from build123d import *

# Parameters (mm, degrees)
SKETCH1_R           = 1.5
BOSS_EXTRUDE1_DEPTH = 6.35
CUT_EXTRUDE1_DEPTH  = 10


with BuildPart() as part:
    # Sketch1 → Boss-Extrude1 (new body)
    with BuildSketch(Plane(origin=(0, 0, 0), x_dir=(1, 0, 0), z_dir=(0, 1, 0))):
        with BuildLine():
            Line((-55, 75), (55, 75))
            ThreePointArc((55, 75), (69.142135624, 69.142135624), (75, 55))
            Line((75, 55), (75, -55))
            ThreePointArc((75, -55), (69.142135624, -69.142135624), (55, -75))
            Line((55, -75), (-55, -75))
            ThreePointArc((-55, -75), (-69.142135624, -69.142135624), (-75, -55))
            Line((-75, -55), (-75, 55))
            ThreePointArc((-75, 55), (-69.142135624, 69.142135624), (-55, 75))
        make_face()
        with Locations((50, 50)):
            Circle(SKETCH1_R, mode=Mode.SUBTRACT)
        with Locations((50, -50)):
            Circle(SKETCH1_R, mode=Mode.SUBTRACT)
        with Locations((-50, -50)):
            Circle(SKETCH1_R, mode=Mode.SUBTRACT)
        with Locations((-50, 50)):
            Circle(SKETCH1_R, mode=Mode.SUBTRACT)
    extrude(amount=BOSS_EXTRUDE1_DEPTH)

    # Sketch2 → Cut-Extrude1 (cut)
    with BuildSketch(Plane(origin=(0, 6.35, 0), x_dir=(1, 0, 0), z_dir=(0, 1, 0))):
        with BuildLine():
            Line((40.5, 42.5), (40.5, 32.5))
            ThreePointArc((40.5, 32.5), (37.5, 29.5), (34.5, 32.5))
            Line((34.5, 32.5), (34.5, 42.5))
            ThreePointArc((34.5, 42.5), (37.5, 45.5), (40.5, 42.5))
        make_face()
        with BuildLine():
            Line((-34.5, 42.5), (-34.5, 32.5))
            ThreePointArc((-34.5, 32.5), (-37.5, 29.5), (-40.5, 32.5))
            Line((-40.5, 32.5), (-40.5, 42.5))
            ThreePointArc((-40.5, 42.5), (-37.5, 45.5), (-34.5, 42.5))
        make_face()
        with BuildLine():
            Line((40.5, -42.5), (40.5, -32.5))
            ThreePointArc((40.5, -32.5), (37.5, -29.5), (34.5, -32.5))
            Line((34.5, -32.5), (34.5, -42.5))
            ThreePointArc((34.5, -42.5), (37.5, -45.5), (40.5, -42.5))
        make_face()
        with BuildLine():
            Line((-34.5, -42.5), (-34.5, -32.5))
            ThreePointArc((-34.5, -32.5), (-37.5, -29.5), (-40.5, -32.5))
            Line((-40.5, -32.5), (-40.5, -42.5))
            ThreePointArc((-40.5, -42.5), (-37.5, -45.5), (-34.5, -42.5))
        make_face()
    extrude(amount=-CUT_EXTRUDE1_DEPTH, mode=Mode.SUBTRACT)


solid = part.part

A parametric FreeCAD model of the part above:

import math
import FreeCAD as App
import Part
import Sketcher

V = App.Vector
Q = App.Units.Quantity

doc = App.newDocument("Part")
body = doc.addObject("PartDesign::Body", "Body")

sketch1 = body.newObject("Sketcher::SketchObject", "Sketch")
sketch1.AttachmentSupport = (doc.getObject("XZ_Plane"), [""])
sketch1.MapMode = "FlatFace"
sketch1.addGeometry(Part.LineSegment(V(55, -75, 0), V(-55, -75, 0)), False)
sketch1.addGeometry(Part.ArcOfCircle(Part.Circle(V(-55, -55, 0), V(0, 0, 1), 20), math.radians(180), math.radians(270)), False)
sketch1.addGeometry(Part.LineSegment(V(-75, -55, 0), V(-75, 55, 0)), False)
sketch1.addGeometry(Part.ArcOfCircle(Part.Circle(V(-55, 55, 0), V(0, 0, 1), 20), math.radians(90), math.radians(180)), False)
sketch1.addGeometry(Part.LineSegment(V(-55, 75, 0), V(55, 75, 0)), False)
sketch1.addGeometry(Part.ArcOfCircle(Part.Circle(V(55, 55, 0), V(0, 0, 1), 20), math.radians(0), math.radians(90)), False)
sketch1.addGeometry(Part.LineSegment(V(75, 55, 0), V(75, -55, 0)), False)
sketch1.addGeometry(Part.ArcOfCircle(Part.Circle(V(55, -55, 0), V(0, 0, 1), 20), math.radians(-90), math.radians(0)), False)
sketch1.addGeometry(Part.Circle(V(50, 50, 0), V(0, 0, 1), 1.5), False)
sketch1.addGeometry(Part.Circle(V(-50, 50, 0), V(0, 0, 1), 1.5), False)
sketch1.addGeometry(Part.Circle(V(50, -50, 0), V(0, 0, 1), 1.5), False)
sketch1.addGeometry(Part.Circle(V(-50, -50, 0), V(0, 0, 1), 1.5), False)
sketch1.addConstraint(Sketcher.Constraint("Tangent", 0, 2, 1, 2))
sketch1.addConstraint(Sketcher.Constraint("Tangent", 1, 1, 2, 1))
sketch1.addConstraint(Sketcher.Constraint("Tangent", 2, 2, 3, 2))
sketch1.addConstraint(Sketcher.Constraint("Tangent", 3, 1, 4, 1))
sketch1.addConstraint(Sketcher.Constraint("Tangent", 4, 2, 5, 2))
sketch1.addConstraint(Sketcher.Constraint("Tangent", 5, 1, 6, 1))
sketch1.addConstraint(Sketcher.Constraint("Tangent", 6, 2, 7, 2))
sketch1.addConstraint(Sketcher.Constraint("Tangent", 7, 1, 0, 1))
sketch1.addConstraint(Sketcher.Constraint("Horizontal", 0))
sketch1.addConstraint(Sketcher.Constraint("Vertical", 2))
sketch1.addConstraint(Sketcher.Constraint("Horizontal", 4))
sketch1.addConstraint(Sketcher.Constraint("Vertical", 6))
sketch1.addConstraint(Sketcher.Constraint("Equal", 1, 3))
sketch1.addConstraint(Sketcher.Constraint("Equal", 3, 5))
sketch1.addConstraint(Sketcher.Constraint("Equal", 5, 7))
sketch1.addConstraint(Sketcher.Constraint("Equal", 8, 9))
sketch1.addConstraint(Sketcher.Constraint("Equal", 9, 10))
sketch1.addConstraint(Sketcher.Constraint("Equal", 10, 11))
sketch1.addConstraint(Sketcher.Constraint("Symmetric", 1, 3, 5, 3, -1, 1))
sketch1.addConstraint(Sketcher.Constraint("Symmetric", 9, 3, 10, 3, -1, 1))
sketch1.addConstraint(Sketcher.Constraint("Symmetric", 8, 3, 11, 3, -1, 1))
sketch1.addConstraint(Sketcher.Constraint("Symmetric", 8, 3, 9, 3, -2))
sketch1.addConstraint(Sketcher.Constraint("Equal", 4, 2))
sketch1.addConstraint(Sketcher.Constraint("Diameter", 8, Q("3 mm")))
sketch1.addConstraint(Sketcher.Constraint("Radius", 1, Q("20 mm")))
sketch1.addConstraint(Sketcher.Constraint("DistanceX", 0, 2, 0, 1, Q("110 mm")))
sketch1.addConstraint(Sketcher.Constraint("DistanceX", -1, 1, 8, 3, Q("50 mm")))
sketch1.addConstraint(Sketcher.Constraint("DistanceY", -1, 1, 8, 3, Q("50 mm")))
pad1 = body.newObject("PartDesign::Pad", "Pad")
pad1.Profile = sketch1
pad1.Length = 6.35
pad1.Reversed = True

sketch2 = body.newObject("Sketcher::SketchObject", "Sketch001")
sketch2.AttachmentSupport = (doc.getObject("XZ_Plane"), [""])
sketch2.MapMode = "FlatFace"
sketch2.AttachmentOffset = App.Placement(V(0, 0, -6.35), App.Rotation())
sketch2.addGeometry(Part.LineSegment(V(40.5, -32.5, 0), V(40.5, -42.5, 0)), False)
sketch2.addGeometry(Part.ArcOfCircle(Part.Circle(V(37.5, -42.5, 0), V(0, 0, 1), 3), math.radians(180), math.radians(360)), False)
sketch2.addGeometry(Part.LineSegment(V(34.5, -42.5, 0), V(34.5, -32.5, 0)), False)
sketch2.addGeometry(Part.ArcOfCircle(Part.Circle(V(37.5, -32.5, 0), V(0, 0, 1), 3), math.radians(0), math.radians(180)), False)
sketch2.addGeometry(Part.LineSegment(V(-34.5, -32.5, 0), V(-34.5, -42.5, 0)), False)
sketch2.addGeometry(Part.ArcOfCircle(Part.Circle(V(-37.5, -42.5, 0), V(0, 0, 1), 3), math.radians(180), math.radians(360)), False)
sketch2.addGeometry(Part.LineSegment(V(-40.5, -42.5, 0), V(-40.5, -32.5, 0)), False)
sketch2.addGeometry(Part.ArcOfCircle(Part.Circle(V(-37.5, -32.5, 0), V(0, 0, 1), 3), math.radians(0), math.radians(180)), False)
sketch2.addGeometry(Part.LineSegment(V(40.5, 42.5, 0), V(40.5, 32.5, 0)), False)
sketch2.addGeometry(Part.ArcOfCircle(Part.Circle(V(37.5, 32.5, 0), V(0, 0, 1), 3), math.radians(180), math.radians(360)), False)
sketch2.addGeometry(Part.LineSegment(V(34.5, 32.5, 0), V(34.5, 42.5, 0)), False)
sketch2.addGeometry(Part.ArcOfCircle(Part.Circle(V(37.5, 42.5, 0), V(0, 0, 1), 3), math.radians(0), math.radians(180)), False)
sketch2.addGeometry(Part.LineSegment(V(-34.5, 42.5, 0), V(-34.5, 32.5, 0)), False)
sketch2.addGeometry(Part.ArcOfCircle(Part.Circle(V(-37.5, 32.5, 0), V(0, 0, 1), 3), math.radians(180), math.radians(360)), False)
sketch2.addGeometry(Part.LineSegment(V(-40.5, 32.5, 0), V(-40.5, 42.5, 0)), False)
sketch2.addGeometry(Part.ArcOfCircle(Part.Circle(V(-37.5, 42.5, 0), V(0, 0, 1), 3), math.radians(0), math.radians(180)), False)
sketch2.addConstraint(Sketcher.Constraint("Tangent", 0, 2, 1, 2))
sketch2.addConstraint(Sketcher.Constraint("Tangent", 1, 1, 2, 1))
sketch2.addConstraint(Sketcher.Constraint("Tangent", 2, 2, 3, 2))
sketch2.addConstraint(Sketcher.Constraint("Tangent", 3, 1, 0, 1))
sketch2.addConstraint(Sketcher.Constraint("Tangent", 4, 2, 5, 2))
sketch2.addConstraint(Sketcher.Constraint("Tangent", 5, 1, 6, 1))
sketch2.addConstraint(Sketcher.Constraint("Tangent", 6, 2, 7, 2))
sketch2.addConstraint(Sketcher.Constraint("Tangent", 7, 1, 4, 1))
sketch2.addConstraint(Sketcher.Constraint("Tangent", 8, 2, 9, 2))
sketch2.addConstraint(Sketcher.Constraint("Tangent", 9, 1, 10, 1))
sketch2.addConstraint(Sketcher.Constraint("Tangent", 10, 2, 11, 2))
sketch2.addConstraint(Sketcher.Constraint("Tangent", 11, 1, 8, 1))
sketch2.addConstraint(Sketcher.Constraint("Tangent", 12, 2, 13, 2))
sketch2.addConstraint(Sketcher.Constraint("Tangent", 13, 1, 14, 1))
sketch2.addConstraint(Sketcher.Constraint("Tangent", 14, 2, 15, 2))
sketch2.addConstraint(Sketcher.Constraint("Tangent", 15, 1, 12, 1))
sketch2.addConstraint(Sketcher.Constraint("Vertical", 0))
sketch2.addConstraint(Sketcher.Constraint("Vertical", 2))
sketch2.addConstraint(Sketcher.Constraint("Vertical", 4))
sketch2.addConstraint(Sketcher.Constraint("Vertical", 6))
sketch2.addConstraint(Sketcher.Constraint("Vertical", 8))
sketch2.addConstraint(Sketcher.Constraint("Vertical", 10))
sketch2.addConstraint(Sketcher.Constraint("Vertical", 12))
sketch2.addConstraint(Sketcher.Constraint("Vertical", 14))
sketch2.addConstraint(Sketcher.Constraint("Equal", 3, 5))
sketch2.addConstraint(Sketcher.Constraint("Equal", 7, 9))
sketch2.addConstraint(Sketcher.Constraint("Equal", 11, 13))
sketch2.addConstraint(Sketcher.Constraint("Symmetric", 7, 3, 9, 3, -1, 1))
sketch2.addConstraint(Sketcher.Constraint("Symmetric", 3, 3, 13, 3, -1, 1))
sketch2.addConstraint(Sketcher.Constraint("Symmetric", 1, 3, 5, 3, -2))
sketch2.addConstraint(Sketcher.Constraint("Horizontal", 3, 3, 7, 3))
sketch2.addConstraint(Sketcher.Constraint("Horizontal", 11, 3, 15, 3))
sketch2.addConstraint(Sketcher.Constraint("Equal", 6, 8))
sketch2.addConstraint(Sketcher.Constraint("Radius", 1, Q("3 mm")))
sketch2.addConstraint(Sketcher.Constraint("DistanceY", 0, 2, 0, 1, Q("10 mm")))
sketch2.addConstraint(Sketcher.Constraint("DistanceX", 5, 3, 1, 3, Q("75 mm")))
sketch2.addConstraint(Sketcher.Constraint("DistanceY", 3, 3, 9, 3, Q("65 mm")))
pocket1 = body.newObject("PartDesign::Pocket", "Pocket")
pocket1.Profile = sketch2
pocket1.Length = 10
pocket1.Reversed = True

doc.recompute()
